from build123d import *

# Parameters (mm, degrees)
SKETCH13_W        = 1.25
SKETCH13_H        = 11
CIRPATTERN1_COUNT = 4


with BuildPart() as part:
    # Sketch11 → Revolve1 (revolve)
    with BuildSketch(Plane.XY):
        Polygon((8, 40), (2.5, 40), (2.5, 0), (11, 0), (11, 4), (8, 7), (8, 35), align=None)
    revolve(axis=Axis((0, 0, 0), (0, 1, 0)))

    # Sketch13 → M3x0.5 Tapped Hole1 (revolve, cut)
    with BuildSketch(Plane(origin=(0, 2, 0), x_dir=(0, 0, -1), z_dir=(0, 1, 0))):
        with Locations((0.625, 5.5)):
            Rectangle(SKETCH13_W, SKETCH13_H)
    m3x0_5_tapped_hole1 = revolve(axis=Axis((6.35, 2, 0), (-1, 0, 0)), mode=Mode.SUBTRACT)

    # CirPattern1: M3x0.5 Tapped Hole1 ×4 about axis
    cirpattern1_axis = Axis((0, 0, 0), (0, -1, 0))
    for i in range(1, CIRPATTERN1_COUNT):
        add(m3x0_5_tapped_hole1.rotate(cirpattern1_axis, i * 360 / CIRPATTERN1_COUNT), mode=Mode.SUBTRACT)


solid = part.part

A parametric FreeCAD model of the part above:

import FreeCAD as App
import Part
import Sketcher
from FreeCAD import Vector
Q = App.Units.Quantity

doc = App.newDocument("Part")
body = doc.addObject("PartDesign::Body", "Body")

# Sketch on XY plane
sketch1 = body.newObject("Sketcher::SketchObject", "Sketch")
sketch1.AttachmentSupport = (doc.getObject("XY_Plane"), [""])
sketch1.MapMode = "FlatFace"
sketch1.addGeometry([
    Part.LineSegment(Vector(8, 40, 0), Vector(2.5, 40, 0)),  # 0
    Part.LineSegment(Vector(2.5, 40, 0), Vector(2.5, 0, 0)),  # 1
    Part.LineSegment(Vector(2.5, 0, 0), Vector(11, 0, 0)),  # 2
    Part.LineSegment(Vector(11, 0, 0), Vector(11, 4, 0)),  # 3
    Part.LineSegment(Vector(11, 4, 0), Vector(8, 7, 0)),  # 4
    Part.LineSegment(Vector(8, 7, 0), Vector(8, 40, 0)),  # 5
], False)
sketch1.addConstraint([
    Sketcher.Constraint("Coincident", 0, 2, 1, 1),
    Sketcher.Constraint("Coincident", 1, 2, 2, 1),
    Sketcher.Constraint("Coincident", 2, 2, 3, 1),
    Sketcher.Constraint("Coincident", 3, 2, 4, 1),
    Sketcher.Constraint("Coincident", 4, 2, 5, 1),
    Sketcher.Constraint("Coincident", 5, 2, 0, 1),
    Sketcher.Constraint("Horizontal", 0),
    Sketcher.Constraint("Vertical", 1),
    Sketcher.Constraint("Horizontal", 2),
    Sketcher.Constraint("Vertical", 3),
    Sketcher.Constraint("Vertical", 5),
    Sketcher.Constraint("PointOnObject", 1, 2, -1),
    Sketcher.Constraint("DistanceY", 1, 2, 1, 1, 40.0),
    Sketcher.Constraint("DistanceY", 3, 1, 3, 2, 4.0),
    Sketcher.Constraint("DistanceY", 5, 1, 5, 2, 33.0),
    Sketcher.Constraint("Angle", 4, Q("135 deg")),
    Sketcher.Constraint("DistanceX", 0, 2, 0, 1, 5.5),
    Sketcher.Constraint("DistanceX", -1, 1, 2, 2, 11.0),
])
revolution = body.newObject("PartDesign::Revolution", "Revolution")
revolution.Profile = sketch1
revolution.ReferenceAxis = (sketch1, ["V_Axis"])
revolution.Angle = 360

# Sketch on XZ plane
sketch2 = body.newObject("Sketcher::SketchObject", "Sketch001")
sketch2.AttachmentSupport = (doc.getObject("XZ_Plane"), [""])
sketch2.MapMode = "FlatFace"
sketch2.AttachmentOffset = App.Placement(Vector(0, 0, -2), App.Rotation())
sketch2.addGeometry([
    Part.LineSegment(Vector(-11, 0, 0), Vector(0, 0, 0)),
    Part.LineSegment(Vector(0, 0, 0), Vector(0, -1.25, 0)),
    Part.LineSegment(Vector(0, -1.25, 0), Vector(-11, -1.25, 0)),
    Part.LineSegment(Vector(-11, -1.25, 0), Vector(-11, 0, 0)),
], False)
sketch2.addConstraint([
    Sketcher.Constraint("Coincident", 0, 2, 1, 1),
    Sketcher.Constraint("Coincident", 1, 2, 2, 1),
    Sketcher.Constraint("Coincident", 2, 2, 3, 1),
    Sketcher.Constraint("Coincident", 3, 2, 0, 1),
    Sketcher.Constraint("Horizontal", 0),
    Sketcher.Constraint("Vertical", 1),
    Sketcher.Constraint("Horizontal", 2),
    Sketcher.Constraint("Vertical", 3),
    Sketcher.Constraint("Coincident", 0, 2, -1, 1),
    Sketcher.Constraint("DistanceX", 0, 1, 0, 2, 11.0),
    Sketcher.Constraint("DistanceY", 1, 2, 1, 1, 1.25),
])
groove = body.newObject("PartDesign::Groove", "Groove")
groove.Profile = sketch2
groove.ReferenceAxis = (sketch2, ["H_Axis"])
groove.Angle = 360
doc.recompute()

polarpattern = body.newObject("PartDesign::PolarPattern", "PolarPattern")
polarpattern.Originals = [groove]
polarpattern.Axis = (doc.getObject("Y_Axis"), [""])
polarpattern.Angle = 360
polarpattern.Occurrences = 4
body.Tip = polarpattern

doc.recompute()
